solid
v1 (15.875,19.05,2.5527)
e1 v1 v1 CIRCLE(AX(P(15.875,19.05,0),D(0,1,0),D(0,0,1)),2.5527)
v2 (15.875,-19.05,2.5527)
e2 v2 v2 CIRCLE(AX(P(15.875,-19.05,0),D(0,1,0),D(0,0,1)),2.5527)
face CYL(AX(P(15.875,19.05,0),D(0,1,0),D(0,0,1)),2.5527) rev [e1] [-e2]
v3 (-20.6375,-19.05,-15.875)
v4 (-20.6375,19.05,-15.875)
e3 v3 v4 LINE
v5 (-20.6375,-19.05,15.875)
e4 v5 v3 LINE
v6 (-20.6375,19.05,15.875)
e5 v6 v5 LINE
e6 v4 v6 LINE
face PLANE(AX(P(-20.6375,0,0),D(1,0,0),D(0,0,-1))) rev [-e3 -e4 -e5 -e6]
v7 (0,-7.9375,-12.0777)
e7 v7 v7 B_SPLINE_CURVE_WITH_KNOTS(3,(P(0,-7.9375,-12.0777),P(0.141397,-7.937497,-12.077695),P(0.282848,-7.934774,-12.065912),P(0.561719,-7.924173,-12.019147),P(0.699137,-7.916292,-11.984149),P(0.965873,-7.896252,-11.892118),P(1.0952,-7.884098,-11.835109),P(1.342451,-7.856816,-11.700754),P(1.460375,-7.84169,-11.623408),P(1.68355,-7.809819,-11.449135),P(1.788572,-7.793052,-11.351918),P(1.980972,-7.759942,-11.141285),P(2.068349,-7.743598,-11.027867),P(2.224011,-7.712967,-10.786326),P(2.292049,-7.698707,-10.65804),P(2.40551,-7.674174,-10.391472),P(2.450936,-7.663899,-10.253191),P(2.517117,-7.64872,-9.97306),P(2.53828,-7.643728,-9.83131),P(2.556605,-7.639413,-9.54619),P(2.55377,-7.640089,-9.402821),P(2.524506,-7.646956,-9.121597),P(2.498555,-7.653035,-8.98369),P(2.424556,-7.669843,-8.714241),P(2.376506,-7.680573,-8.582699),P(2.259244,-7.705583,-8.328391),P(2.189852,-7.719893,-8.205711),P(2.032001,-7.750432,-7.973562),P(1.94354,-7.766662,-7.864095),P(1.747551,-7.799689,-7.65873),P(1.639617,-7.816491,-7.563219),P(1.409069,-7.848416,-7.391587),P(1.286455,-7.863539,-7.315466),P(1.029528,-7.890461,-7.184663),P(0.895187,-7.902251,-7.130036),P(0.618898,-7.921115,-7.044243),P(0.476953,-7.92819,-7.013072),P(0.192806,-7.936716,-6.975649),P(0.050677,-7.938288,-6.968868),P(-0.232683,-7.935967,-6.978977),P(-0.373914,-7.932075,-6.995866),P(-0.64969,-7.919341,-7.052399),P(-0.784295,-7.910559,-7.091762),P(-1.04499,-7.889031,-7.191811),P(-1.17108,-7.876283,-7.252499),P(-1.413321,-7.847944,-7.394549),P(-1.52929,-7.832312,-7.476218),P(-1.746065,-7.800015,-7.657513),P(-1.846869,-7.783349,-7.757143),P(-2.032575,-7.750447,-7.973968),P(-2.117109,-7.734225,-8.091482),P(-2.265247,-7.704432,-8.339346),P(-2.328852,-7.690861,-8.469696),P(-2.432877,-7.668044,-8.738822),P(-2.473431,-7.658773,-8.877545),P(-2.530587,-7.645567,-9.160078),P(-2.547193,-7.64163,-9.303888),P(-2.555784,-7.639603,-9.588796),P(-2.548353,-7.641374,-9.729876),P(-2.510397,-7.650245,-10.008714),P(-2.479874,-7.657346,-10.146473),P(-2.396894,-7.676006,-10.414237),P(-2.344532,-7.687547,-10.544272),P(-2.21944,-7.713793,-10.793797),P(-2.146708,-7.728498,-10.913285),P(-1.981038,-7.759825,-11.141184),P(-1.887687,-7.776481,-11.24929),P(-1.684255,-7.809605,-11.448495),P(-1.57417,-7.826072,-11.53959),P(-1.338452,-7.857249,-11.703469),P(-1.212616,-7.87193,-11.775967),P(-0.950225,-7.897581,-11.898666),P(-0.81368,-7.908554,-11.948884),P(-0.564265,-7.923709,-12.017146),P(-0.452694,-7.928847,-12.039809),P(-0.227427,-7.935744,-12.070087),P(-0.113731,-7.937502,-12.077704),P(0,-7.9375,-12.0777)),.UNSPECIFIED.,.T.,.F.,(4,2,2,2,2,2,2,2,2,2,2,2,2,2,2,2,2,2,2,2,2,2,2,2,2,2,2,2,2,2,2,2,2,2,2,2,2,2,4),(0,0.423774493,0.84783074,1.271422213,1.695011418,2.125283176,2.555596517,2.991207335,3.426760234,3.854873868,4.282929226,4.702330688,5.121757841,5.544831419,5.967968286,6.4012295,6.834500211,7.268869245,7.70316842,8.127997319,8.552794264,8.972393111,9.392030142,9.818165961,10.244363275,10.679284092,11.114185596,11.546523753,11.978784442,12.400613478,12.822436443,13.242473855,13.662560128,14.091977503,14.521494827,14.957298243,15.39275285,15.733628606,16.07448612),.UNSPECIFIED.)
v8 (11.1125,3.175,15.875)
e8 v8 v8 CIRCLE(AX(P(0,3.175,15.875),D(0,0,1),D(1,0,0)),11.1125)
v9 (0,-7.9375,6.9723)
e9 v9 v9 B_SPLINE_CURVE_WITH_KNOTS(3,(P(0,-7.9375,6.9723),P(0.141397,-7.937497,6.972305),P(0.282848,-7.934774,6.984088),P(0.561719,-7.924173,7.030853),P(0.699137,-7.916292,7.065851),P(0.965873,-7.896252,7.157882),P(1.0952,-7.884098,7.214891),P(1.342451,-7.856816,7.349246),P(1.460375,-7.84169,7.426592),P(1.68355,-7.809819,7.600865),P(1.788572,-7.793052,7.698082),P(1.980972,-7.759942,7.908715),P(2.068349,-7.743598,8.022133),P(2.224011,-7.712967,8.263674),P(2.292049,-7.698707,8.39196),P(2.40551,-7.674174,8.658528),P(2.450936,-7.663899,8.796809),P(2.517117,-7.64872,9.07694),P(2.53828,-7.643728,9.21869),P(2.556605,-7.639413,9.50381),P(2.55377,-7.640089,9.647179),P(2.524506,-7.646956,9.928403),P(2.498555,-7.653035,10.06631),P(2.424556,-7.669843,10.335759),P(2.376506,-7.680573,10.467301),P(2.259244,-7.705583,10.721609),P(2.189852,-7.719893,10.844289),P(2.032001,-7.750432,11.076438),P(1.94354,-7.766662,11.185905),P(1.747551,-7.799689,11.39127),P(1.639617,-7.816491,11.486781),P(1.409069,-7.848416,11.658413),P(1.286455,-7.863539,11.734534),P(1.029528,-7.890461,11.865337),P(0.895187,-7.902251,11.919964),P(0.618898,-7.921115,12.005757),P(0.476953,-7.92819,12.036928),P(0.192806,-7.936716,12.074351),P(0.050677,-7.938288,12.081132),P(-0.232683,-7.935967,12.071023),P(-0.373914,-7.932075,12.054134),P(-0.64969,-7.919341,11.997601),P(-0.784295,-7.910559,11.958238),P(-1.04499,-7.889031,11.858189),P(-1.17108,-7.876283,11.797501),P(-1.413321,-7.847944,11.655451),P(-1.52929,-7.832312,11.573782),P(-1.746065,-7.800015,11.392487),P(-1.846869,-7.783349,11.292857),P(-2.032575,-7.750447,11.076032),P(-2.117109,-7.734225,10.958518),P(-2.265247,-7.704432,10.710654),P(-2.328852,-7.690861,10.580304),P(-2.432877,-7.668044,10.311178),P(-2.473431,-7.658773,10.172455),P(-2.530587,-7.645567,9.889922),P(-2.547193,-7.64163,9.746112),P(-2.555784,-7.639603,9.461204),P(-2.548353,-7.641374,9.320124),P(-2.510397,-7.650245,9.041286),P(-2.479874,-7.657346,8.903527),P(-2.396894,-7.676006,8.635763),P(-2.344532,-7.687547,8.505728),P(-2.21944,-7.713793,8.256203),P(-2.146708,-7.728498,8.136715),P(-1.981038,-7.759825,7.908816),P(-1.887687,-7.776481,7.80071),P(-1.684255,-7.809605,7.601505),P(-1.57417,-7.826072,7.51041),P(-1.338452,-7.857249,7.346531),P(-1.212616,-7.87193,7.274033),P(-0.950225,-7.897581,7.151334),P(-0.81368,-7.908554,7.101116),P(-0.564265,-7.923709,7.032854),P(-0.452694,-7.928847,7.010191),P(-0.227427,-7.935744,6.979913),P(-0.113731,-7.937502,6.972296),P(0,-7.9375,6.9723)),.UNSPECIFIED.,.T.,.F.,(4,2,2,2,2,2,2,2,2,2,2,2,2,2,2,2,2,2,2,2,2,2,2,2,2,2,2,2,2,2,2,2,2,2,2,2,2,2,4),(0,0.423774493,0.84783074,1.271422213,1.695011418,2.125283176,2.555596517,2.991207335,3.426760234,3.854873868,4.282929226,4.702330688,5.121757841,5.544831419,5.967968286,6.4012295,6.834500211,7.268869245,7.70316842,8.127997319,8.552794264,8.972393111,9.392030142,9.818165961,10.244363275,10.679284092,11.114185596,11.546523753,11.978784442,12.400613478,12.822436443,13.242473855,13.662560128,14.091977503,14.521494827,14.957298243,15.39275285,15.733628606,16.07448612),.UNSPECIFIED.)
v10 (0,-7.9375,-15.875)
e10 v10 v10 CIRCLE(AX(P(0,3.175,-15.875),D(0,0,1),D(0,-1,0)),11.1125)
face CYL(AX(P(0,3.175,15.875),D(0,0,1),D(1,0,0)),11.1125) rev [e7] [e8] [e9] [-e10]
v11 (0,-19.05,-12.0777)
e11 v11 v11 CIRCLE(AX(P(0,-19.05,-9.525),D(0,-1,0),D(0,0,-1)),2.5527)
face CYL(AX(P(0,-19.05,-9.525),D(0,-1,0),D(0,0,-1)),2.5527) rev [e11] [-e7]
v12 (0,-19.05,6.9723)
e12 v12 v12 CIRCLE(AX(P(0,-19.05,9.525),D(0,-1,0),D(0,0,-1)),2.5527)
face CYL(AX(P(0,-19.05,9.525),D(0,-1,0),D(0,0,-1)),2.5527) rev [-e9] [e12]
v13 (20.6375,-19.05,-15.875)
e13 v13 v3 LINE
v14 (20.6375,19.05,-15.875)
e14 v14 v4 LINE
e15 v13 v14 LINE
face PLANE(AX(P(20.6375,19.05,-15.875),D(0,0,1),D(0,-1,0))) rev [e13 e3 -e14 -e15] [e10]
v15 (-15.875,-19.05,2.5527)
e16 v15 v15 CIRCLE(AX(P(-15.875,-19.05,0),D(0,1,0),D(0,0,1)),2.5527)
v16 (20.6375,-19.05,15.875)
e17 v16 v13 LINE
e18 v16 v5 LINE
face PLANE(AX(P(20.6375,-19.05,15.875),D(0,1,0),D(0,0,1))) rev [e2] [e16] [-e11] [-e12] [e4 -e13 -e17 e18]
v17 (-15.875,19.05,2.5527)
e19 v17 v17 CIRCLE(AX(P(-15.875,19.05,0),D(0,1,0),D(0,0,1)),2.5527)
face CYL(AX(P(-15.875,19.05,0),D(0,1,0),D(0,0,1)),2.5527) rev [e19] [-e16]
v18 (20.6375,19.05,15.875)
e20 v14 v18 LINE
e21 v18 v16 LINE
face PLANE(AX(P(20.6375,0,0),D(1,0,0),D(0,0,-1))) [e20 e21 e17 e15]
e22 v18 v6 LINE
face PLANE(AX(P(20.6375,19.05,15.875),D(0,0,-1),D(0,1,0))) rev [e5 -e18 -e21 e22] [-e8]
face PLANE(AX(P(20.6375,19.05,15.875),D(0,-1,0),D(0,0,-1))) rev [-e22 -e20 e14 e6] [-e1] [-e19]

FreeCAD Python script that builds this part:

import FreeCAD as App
import Part
import Sketcher
from FreeCAD import Vector
Q = App.Units.Quantity

doc = App.newDocument("Part")
body = doc.addObject("PartDesign::Body", "Body")

# Sketch on YZ plane
sketch1 = body.newObject("Sketcher::SketchObject", "Sketch")
sketch1.AttachmentSupport = (doc.getObject("YZ_Plane"), [""])
sketch1.MapMode = "FlatFace"
sketch1.addGeometry([
    Part.LineSegment(Vector(19, 16, 0), Vector(-19, 16, 0)),
    Part.LineSegment(Vector(-19, 16, 0), Vector(-19, -16, 0)),
    Part.LineSegment(Vector(-19, -16, 0), Vector(19, -16, 0)),
    Part.LineSegment(Vector(19, -16, 0), Vector(19, 16, 0)),
], False)
sketch1.addConstraint([
    Sketcher.Constraint("Coincident", 0, 2, 1, 1),
    Sketcher.Constraint("Coincident", 1, 2, 2, 1),
    Sketcher.Constraint("Coincident", 2, 2, 3, 1),
    Sketcher.Constraint("Coincident", 3, 2, 0, 1),
    Sketcher.Constraint("Horizontal", 0),
    Sketcher.Constraint("Vertical", 1),
    Sketcher.Constraint("Horizontal", 2),
    Sketcher.Constraint("Vertical", 3),
    Sketcher.Constraint("Symmetric", 0, 2, 2, 2, -1, 1),
    Sketcher.Constraint("DistanceX", 0, 2, 0, 1, Q("1.5 in")),
    Sketcher.Constraint("DistanceY", 1, 2, 1, 1, Q("1.25 in")),
])
pad1 = body.newObject("PartDesign::Pad", "Pad")
pad1.Profile = sketch1
pad1.Length = Q("1.625 in")
pad1.Midplane = True

# Sketch on XY plane
sketch2 = body.newObject("Sketcher::SketchObject", "Sketch001")
sketch2.AttachmentSupport = (doc.getObject("XY_Plane"), [""])
sketch2.MapMode = "FlatFace"
sketch2.AttachmentOffset = App.Placement(Vector(0, 0, 0.625 * 25.4), App.Rotation())
sketch2.addGeometry(Part.Circle(Vector(0, 3, 0), Vector(0, 0, 1), 11), False)
sketch2.addConstraint([
    Sketcher.Constraint("PointOnObject", 0, 3, -2),
    Sketcher.Constraint("Diameter", 0, Q("0.875 in")),
    Sketcher.Constraint("DistanceY", -1, 1, 0, 3, Q("0.125 in")),
])
doc.recompute()
hole = body.newObject("PartDesign::Hole", "Hole")
hole.Profile = sketch2
hole.ThreadType = "None"
hole.Diameter = Q("0.875 in")
hole.DepthType = "ThroughAll"

# Sketch on XZ plane
sketch3 = body.newObject("Sketcher::SketchObject", "Sketch002")
sketch3.AttachmentSupport = (doc.getObject("XZ_Plane"), [""])
sketch3.MapMode = "FlatFace"
sketch3.AttachmentOffset = App.Placement(Vector(0, 0, -0.75 * 25.4), App.Rotation())
sketch3.addGeometry([
    Part.Circle(Vector(-15.9, 0, 0), Vector(0, 0, 1), 2.6),
    Part.Circle(Vector(15.9, 0, 0), Vector(0, 0, 1), 2.6),
], False)
sketch3.addConstraint([
    Sketcher.Constraint("Equal", 0, 1),
    Sketcher.Constraint("Symmetric", 0, 3, 1, 3, -1, 1),
    Sketcher.Constraint("PointOnObject", 0, 3, -1),
    Sketcher.Constraint("Diameter", 0, Q("0.201 in")),
    Sketcher.Constraint("DistanceX", 0, 3, 1, 3, Q("1.25 in")),
])
doc.recompute()
hole2 = body.newObject("PartDesign::Hole", "Hole001")
hole2.Profile = sketch3
hole2.ThreadType = "None"
hole2.Diameter = Q("0.201 in")
hole2.DepthType = "ThroughAll"
hole2.Reversed = True

# Sketch on XZ plane
sketch4 = body.newObject("Sketcher::SketchObject", "Sketch003")
sketch4.AttachmentSupport = (doc.getObject("XZ_Plane"), [""])
sketch4.MapMode = "FlatFace"
sketch4.AttachmentOffset = App.Placement(Vector(0, 0, 0.75 * 25.4), App.Rotation())
sketch4.addGeometry(Part.Circle(Vector(0, -9.5, 0), Vector(0, 0, 1), 2.6), False)
sketch4.addConstraint([
    Sketcher.Constraint("PointOnObject", 0, 3, -2),
    Sketcher.Constraint("Diameter", 0, Q("0.201 in")),
    Sketcher.Constraint("DistanceY", 0, 3, -1, 1, Q("0.375 in")),
])
pocket1 = body.newObject("PartDesign::Pocket", "Pocket")
pocket1.Profile = sketch4
pocket1.Type = "UpToFirst"

# Sketch on XZ plane
sketch5 = body.newObject("Sketcher::SketchObject", "Sketch004")
sketch5.AttachmentSupport = (doc.getObject("XZ_Plane"), [""])
sketch5.MapMode = "FlatFace"
sketch5.AttachmentOffset = App.Placement(Vector(0, 0, 0.75 * 25.4), App.Rotation())
sketch5.addGeometry(Part.Circle(Vector(0, 9.5, 0), Vector(0, 0, 1), 2.6), False)
sketch5.addConstraint([
    Sketcher.Constraint("PointOnObject", 0, 3, -2),
    Sketcher.Constraint("Diameter", 0, Q("0.201 in")),
    Sketcher.Constraint("DistanceY", -1, 1, 0, 3, Q("0.375 in")),
])
pocket2 = body.newObject("PartDesign::Pocket", "Pocket001")
pocket2.Profile = sketch5
pocket2.Type = "UpToFirst"

doc.recompute()
